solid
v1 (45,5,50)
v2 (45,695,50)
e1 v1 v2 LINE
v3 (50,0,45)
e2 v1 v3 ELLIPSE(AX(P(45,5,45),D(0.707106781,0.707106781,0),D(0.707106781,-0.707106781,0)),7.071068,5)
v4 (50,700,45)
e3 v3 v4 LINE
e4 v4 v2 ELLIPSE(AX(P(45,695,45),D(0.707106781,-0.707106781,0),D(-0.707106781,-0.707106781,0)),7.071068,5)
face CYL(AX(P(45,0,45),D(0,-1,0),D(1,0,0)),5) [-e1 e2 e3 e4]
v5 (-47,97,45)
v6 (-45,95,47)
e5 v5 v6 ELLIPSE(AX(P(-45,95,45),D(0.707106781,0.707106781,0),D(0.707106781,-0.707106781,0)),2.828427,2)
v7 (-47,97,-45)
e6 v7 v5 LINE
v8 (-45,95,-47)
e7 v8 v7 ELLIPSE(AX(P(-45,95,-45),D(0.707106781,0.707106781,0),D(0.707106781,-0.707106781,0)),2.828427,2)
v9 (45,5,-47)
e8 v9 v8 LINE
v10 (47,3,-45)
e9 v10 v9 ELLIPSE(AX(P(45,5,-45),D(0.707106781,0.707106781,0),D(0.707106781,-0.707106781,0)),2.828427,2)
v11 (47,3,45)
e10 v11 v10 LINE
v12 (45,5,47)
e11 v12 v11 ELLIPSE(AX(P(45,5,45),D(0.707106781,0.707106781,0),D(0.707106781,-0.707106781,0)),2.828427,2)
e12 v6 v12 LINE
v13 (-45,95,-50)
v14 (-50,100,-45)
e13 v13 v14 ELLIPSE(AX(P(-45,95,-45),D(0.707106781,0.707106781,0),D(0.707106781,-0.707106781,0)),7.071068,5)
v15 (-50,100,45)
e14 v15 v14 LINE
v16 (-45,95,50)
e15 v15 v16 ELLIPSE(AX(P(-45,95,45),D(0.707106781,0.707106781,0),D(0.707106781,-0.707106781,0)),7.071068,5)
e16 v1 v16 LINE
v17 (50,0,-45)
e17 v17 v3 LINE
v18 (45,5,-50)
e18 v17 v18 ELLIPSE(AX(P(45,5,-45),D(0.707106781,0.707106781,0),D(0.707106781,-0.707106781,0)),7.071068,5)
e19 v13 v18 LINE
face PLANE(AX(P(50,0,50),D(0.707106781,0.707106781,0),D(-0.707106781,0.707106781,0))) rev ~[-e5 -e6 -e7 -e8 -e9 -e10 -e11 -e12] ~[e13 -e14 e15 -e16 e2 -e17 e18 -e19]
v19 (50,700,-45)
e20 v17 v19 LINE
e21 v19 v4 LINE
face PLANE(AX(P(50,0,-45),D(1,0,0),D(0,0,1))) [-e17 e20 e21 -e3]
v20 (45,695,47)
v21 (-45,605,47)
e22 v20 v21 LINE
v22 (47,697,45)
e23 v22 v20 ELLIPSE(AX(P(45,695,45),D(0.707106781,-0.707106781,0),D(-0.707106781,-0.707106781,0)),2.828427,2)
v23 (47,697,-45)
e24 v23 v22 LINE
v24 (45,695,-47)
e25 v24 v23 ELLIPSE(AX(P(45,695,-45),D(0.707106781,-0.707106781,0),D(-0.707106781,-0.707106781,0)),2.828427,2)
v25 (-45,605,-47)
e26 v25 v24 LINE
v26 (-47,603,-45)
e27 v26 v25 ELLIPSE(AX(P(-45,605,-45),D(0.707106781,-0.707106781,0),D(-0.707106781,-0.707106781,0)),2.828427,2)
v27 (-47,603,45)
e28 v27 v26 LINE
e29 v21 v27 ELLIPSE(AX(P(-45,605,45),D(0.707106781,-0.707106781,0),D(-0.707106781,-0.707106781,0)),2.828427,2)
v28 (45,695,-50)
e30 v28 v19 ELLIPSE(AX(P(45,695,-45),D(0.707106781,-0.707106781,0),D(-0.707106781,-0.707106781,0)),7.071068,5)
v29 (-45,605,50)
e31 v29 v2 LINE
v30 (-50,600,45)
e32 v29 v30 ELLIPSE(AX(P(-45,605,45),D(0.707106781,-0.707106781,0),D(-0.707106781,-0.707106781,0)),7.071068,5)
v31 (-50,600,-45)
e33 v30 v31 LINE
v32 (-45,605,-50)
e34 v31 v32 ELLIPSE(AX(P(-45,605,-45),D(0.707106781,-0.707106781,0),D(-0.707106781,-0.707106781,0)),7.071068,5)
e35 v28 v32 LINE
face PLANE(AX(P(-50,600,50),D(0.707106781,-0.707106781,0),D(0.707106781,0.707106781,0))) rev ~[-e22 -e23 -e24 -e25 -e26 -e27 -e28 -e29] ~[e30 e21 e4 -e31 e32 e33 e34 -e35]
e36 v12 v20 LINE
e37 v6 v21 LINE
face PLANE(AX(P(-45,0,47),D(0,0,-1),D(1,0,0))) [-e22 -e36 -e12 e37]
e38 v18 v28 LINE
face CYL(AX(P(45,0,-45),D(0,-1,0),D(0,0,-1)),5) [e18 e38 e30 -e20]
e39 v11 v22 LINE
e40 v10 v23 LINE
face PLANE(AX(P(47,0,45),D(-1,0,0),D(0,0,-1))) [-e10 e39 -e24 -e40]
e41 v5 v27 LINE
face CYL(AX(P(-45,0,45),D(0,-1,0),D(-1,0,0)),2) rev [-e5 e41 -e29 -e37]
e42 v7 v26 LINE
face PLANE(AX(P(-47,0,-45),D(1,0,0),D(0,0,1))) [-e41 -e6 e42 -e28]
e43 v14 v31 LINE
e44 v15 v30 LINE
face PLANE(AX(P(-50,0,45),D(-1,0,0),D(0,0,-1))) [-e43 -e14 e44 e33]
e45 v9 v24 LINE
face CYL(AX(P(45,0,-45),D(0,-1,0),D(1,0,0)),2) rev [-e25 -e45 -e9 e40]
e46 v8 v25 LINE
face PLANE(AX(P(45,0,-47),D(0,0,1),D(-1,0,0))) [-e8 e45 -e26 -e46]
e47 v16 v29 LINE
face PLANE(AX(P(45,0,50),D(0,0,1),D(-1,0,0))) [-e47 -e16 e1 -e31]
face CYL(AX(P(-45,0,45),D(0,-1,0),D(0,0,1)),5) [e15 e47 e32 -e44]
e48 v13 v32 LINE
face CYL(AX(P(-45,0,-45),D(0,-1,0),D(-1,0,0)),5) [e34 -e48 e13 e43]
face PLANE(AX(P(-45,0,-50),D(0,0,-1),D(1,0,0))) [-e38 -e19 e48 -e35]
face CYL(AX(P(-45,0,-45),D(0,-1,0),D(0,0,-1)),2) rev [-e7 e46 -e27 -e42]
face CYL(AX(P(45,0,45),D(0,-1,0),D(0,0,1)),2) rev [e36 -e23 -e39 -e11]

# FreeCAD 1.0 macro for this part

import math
import FreeCAD as App
import Part
import Sketcher
from FreeCAD import Vector


def add_polygon(sketch, points):
    """Adds a closed chain of lines whose ends are joined by coincident constraints."""
    first, n = sketch.GeometryCount, len(points)
    for a, b in zip(points, points[1:] + points[:1]):
        sketch.addGeometry(Part.LineSegment(App.Vector(*a, 0), App.Vector(*b, 0)), False)
    for i in range(n):
        sketch.addConstraint(Sketcher.Constraint("Coincident", first + i, 2, first + (i + 1) % n, 1))

doc = App.newDocument("Part")
body = doc.addObject("PartDesign::Body", "Body")

sketch1 = body.newObject("Sketcher::SketchObject", "Sketch")
sketch1.AttachmentSupport = (doc.getObject("XZ_Plane"), [""])
sketch1.MapMode = "FlatFace"
sketch1.addGeometry([
    Part.ArcOfCircle(Part.Circle(Vector(45, 45, 0), Vector(0, 0, 1), 5), math.radians(0), math.radians(90)),
    Part.LineSegment(Vector(45, 50, 0), Vector(-45, 50, 0)),
    Part.ArcOfCircle(Part.Circle(Vector(-45, 45, 0), Vector(0, 0, 1), 5), math.radians(90), math.radians(180)),
    Part.LineSegment(Vector(-50, 45, 0), Vector(-50, -45, 0)),
    Part.ArcOfCircle(Part.Circle(Vector(-45, -45, 0), Vector(0, 0, 1), 5), math.radians(180), math.radians(270)),
    Part.LineSegment(Vector(-45, -50, 0), Vector(45, -50, 0)),
    Part.ArcOfCircle(Part.Circle(Vector(45, -45, 0), Vector(0, 0, 1), 5), math.radians(-90), math.radians(0)),
    Part.LineSegment(Vector(50, -45, 0), Vector(50, 45, 0)),
    Part.LineSegment(Vector(-47, -45, 0), Vector(-47, 45, 0)),
    Part.ArcOfCircle(Part.Circle(Vector(-45, 45, 0), Vector(0, 0, 1), 2), math.radians(90), math.radians(180)),
    Part.LineSegment(Vector(-45, 47, 0), Vector(45, 47, 0)),
    Part.ArcOfCircle(Part.Circle(Vector(45, 45, 0), Vector(0, 0, 1), 2), math.radians(0), math.radians(90)),
    Part.LineSegment(Vector(47, 45, 0), Vector(47, -45, 0)),
    Part.ArcOfCircle(Part.Circle(Vector(45, -45, 0), Vector(0, 0, 1), 2), math.radians(-90), math.radians(0)),
    Part.LineSegment(Vector(45, -47, 0), Vector(-45, -47, 0)),
    Part.ArcOfCircle(Part.Circle(Vector(-45, -45, 0), Vector(0, 0, 1), 2), math.radians(180), math.radians(270)),
], False)
sketch1.addConstraint([
    Sketcher.Constraint("Tangent", 0, 2, 1, 1),
    Sketcher.Constraint("Tangent", 1, 2, 2, 1),
    Sketcher.Constraint("Tangent", 2, 2, 3, 1),
    Sketcher.Constraint("Tangent", 3, 2, 4, 1),
    Sketcher.Constraint("Tangent", 4, 2, 5, 1),
    Sketcher.Constraint("Tangent", 5, 2, 6, 1),
    Sketcher.Constraint("Tangent", 6, 2, 7, 1),
    Sketcher.Constraint("Tangent", 7, 2, 0, 1),
    Sketcher.Constraint("Tangent", 8, 2, 9, 2),
    Sketcher.Constraint("Tangent", 9, 1, 10, 1),
    Sketcher.Constraint("Tangent", 10, 2, 11, 2),
    Sketcher.Constraint("Tangent", 11, 1, 12, 1),
    Sketcher.Constraint("Tangent", 12, 2, 13, 2),
    Sketcher.Constraint("Tangent", 13, 1, 14, 1),
    Sketcher.Constraint("Tangent", 14, 2, 15, 2),
    Sketcher.Constraint("Tangent", 15, 1, 8, 1),
    Sketcher.Constraint("Horizontal", 1),
    Sketcher.Constraint("Vertical", 3),
    Sketcher.Constraint("Horizontal", 5),
    Sketcher.Constraint("Vertical", 7),
    Sketcher.Constraint("Vertical", 8),
    Sketcher.Constraint("Horizontal", 10),
    Sketcher.Constraint("Vertical", 12),
    Sketcher.Constraint("Horizontal", 14),
    Sketcher.Constraint("Coincident", 9, 3, 2, 3),
    Sketcher.Constraint("Coincident", 11, 3, 0, 3),
    Sketcher.Constraint("Coincident", 13, 3, 6, 3),
    Sketcher.Constraint("Equal", 0, 2),
    Sketcher.Constraint("Equal", 2, 4),
    Sketcher.Constraint("Equal", 4, 6),
    Sketcher.Constraint("Equal", 13, 15),
    Sketcher.Constraint("Symmetric", 0, 3, 4, 3, -1, 1),
    Sketcher.Constraint("Equal", 14, 3),
    Sketcher.Constraint("Radius", 0, 5.0),
    Sketcher.Constraint("Radius", 9, 2.0),
    Sketcher.Constraint("DistanceX", 1, 2, 1, 1, 90.0),
])
pad1 = body.newObject("PartDesign::Pad", "Pad")
pad1.Profile = sketch1
pad1.Length = 700
pad1.Reversed = True

sketch2 = body.newObject("Sketcher::SketchObject", "Sketch001")
sketch2.AttachmentSupport = (doc.getObject("XY_Plane"), [""])
sketch2.MapMode = "FlatFace"
sketch2.AttachmentOffset = App.Placement(Vector(0, 0, 50), App.Rotation())
add_polygon(sketch2, [(-50, 100), (-50, 0), (50, 0)])
sketch2.addConstraint([
    Sketcher.Constraint("Vertical", 0),
    Sketcher.Constraint("Horizontal", 1),
    Sketcher.Constraint("Symmetric", 0, 2, 1, 2, -1, 1),
    Sketcher.Constraint("Equal", 1, 0),
    Sketcher.Constraint("DistanceX", 1, 1, 1, 2, 100.0),
])
pocket1 = body.newObject("PartDesign::Pocket", "Pocket")
pocket1.Profile = sketch2
pocket1.Type = "ThroughAll"

sketch3 = body.newObject("Sketcher::SketchObject", "Sketch002")
sketch3.AttachmentSupport = (doc.getObject("XY_Plane"), [""])
sketch3.MapMode = "FlatFace"
sketch3.AttachmentOffset = App.Placement(Vector(0, 0, 50), App.Rotation())
add_polygon(sketch3, [(-50, 100), (-50, 0), (50, 0)])
add_polygon(sketch3, [(50, 700), (-50, 700), (-50, 600)])
sketch3.addConstraint([
    Sketcher.Constraint("Vertical", 0),
    Sketcher.Constraint("Horizontal", 1),
    Sketcher.Constraint("Horizontal", 3),
    Sketcher.Constraint("Vertical", 4),
    Sketcher.Constraint("Symmetric", 0, 2, 1, 2, -1, 1),
    Sketcher.Constraint("Perpendicular", 2, 5),
    Sketcher.Constraint("Vertical", 2, 2, 3, 2),
    Sketcher.Constraint("Vertical", 1, 2, 5, 2),
    Sketcher.Constraint("Equal", 3, 0),
    Sketcher.Constraint("DistanceX", 1, 1, 1, 2, 100.0),
    Sketcher.Constraint("DistanceY", -1, 1, 3, 2, 700.0),
])
pocket2 = body.newObject("PartDesign::Pocket", "Pocket001")
pocket2.Profile = sketch3
pocket2.Type = "ThroughAll"

doc.recompute()
